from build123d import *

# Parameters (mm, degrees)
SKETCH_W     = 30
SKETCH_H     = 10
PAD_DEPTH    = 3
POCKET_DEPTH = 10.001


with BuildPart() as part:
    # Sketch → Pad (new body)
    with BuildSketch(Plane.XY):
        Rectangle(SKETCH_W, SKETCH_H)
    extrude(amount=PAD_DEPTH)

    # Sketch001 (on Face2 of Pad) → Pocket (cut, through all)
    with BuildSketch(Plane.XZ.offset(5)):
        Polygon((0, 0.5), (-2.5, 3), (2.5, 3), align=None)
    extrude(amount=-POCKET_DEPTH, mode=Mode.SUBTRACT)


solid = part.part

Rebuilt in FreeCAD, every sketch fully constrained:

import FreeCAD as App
import Part
import Sketcher

doc = App.newDocument("Part")
body = doc.addObject("PartDesign::Body", "Body")

# Sketch on XY plane
sketch1 = body.newObject("Sketcher::SketchObject", "Sketch")
sketch1.AttachmentSupport = (doc.getObject("XY_Plane"), [""])
sketch1.MapMode = "FlatFace"
sketch1.addGeometry([
    Part.LineSegment(App.Vector(-15, 5, 0), App.Vector(-15, -5, 0)),
    Part.LineSegment(App.Vector(-15, -5, 0), App.Vector(15, -5, 0)),
    Part.LineSegment(App.Vector(15, -5, 0), App.Vector(15, 5, 0)),
    Part.LineSegment(App.Vector(15, 5, 0), App.Vector(-15, 5, 0)),
], False)
sketch1.addConstraint([
    Sketcher.Constraint("Coincident", 0, 2, 1, 1),
    Sketcher.Constraint("Coincident", 1, 2, 2, 1),
    Sketcher.Constraint("Coincident", 2, 2, 3, 1),
    Sketcher.Constraint("Coincident", 3, 2, 0, 1),
    Sketcher.Constraint("Vertical", 0),
    Sketcher.Constraint("Horizontal", 1),
    Sketcher.Constraint("Vertical", 2),
    Sketcher.Constraint("Horizontal", 3),
    Sketcher.Constraint("Symmetric", 0, 2, 2, 2, -1, 1),
    Sketcher.Constraint("DistanceX", 1, 1, 1, 2, 30.0),
    Sketcher.Constraint("DistanceY", 0, 2, 0, 1, 10.0),
])
pad1 = body.newObject("PartDesign::Pad", "Pad")
pad1.Profile = sketch1
pad1.Length = 3

# Sketch on XZ plane
sketch2 = body.newObject("Sketcher::SketchObject", "Sketch001")
sketch2.AttachmentSupport = (doc.getObject("XZ_Plane"), [""])
sketch2.MapMode = "FlatFace"
sketch2.AttachmentOffset = App.Placement(App.Vector(0, 0, 5), App.Rotation())
sketch2.addGeometry([
    Part.LineSegment(App.Vector(-2.5, 3, 0), App.Vector(0, 0.5, 0)),
    Part.LineSegment(App.Vector(0, 0.5, 0), App.Vector(2.5, 3, 0)),
    Part.LineSegment(App.Vector(2.5, 3, 0), App.Vector(-2.5, 3, 0)),
], False)
sketch2.addConstraint([
    Sketcher.Constraint("Coincident", 0, 2, 1, 1),
    Sketcher.Constraint("Coincident", 1, 2, 2, 1),
    Sketcher.Constraint("Coincident", 2, 2, 0, 1),
    Sketcher.Constraint("Horizontal", 2),
    Sketcher.Constraint("PointOnObject", 0, 2, -2),
    Sketcher.Constraint("Perpendicular", 0, 1),
    Sketcher.Constraint("Equal", 0, 1),
    Sketcher.Constraint("DistanceX", 2, 2, 2, 1, 5.0),
    Sketcher.Constraint("DistanceY", -1, 1, 1, 2, 3.0),
])
pocket1 = body.newObject("PartDesign::Pocket", "Pocket")
pocket1.Profile = sketch2
pocket1.Type = "ThroughAll"

doc.recompute()
